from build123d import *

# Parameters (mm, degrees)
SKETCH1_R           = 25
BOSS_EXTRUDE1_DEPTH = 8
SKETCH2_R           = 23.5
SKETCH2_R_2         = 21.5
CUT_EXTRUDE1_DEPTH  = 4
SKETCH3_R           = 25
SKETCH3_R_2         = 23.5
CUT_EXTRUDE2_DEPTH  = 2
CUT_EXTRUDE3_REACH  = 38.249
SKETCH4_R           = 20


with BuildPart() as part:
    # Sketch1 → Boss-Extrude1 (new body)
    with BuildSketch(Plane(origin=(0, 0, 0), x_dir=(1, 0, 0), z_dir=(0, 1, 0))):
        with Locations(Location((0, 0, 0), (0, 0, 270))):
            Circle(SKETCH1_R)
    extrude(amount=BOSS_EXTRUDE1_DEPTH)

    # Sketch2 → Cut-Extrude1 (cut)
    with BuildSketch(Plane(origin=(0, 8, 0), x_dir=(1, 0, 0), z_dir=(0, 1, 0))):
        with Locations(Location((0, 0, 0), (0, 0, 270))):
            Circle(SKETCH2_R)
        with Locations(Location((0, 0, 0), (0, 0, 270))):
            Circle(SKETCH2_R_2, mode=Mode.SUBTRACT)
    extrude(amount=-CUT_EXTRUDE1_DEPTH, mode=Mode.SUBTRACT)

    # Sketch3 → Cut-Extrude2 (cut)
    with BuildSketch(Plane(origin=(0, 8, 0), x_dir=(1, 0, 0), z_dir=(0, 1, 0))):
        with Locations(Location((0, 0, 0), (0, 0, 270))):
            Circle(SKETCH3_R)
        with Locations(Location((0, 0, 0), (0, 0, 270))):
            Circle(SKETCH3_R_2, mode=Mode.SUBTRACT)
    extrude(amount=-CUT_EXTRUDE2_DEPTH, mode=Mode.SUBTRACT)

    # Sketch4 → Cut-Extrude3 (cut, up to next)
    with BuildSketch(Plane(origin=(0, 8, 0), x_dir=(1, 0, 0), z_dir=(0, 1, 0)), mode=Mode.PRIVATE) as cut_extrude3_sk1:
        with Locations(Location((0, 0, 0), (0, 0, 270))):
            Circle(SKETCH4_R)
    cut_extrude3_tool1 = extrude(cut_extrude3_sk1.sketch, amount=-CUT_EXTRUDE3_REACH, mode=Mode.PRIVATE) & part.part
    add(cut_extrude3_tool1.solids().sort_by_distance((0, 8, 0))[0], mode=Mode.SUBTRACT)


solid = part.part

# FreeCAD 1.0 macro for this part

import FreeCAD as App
import Part
import Sketcher
Q = App.Units.Quantity

doc = App.newDocument("Part")
body = doc.addObject("PartDesign::Body", "Body")

sketch1 = doc.addObject("Sketcher::SketchObject", "Sketch")
body.addObject(sketch1)
sketch1.AttachmentSupport = (doc.XZ_Plane, [""])
sketch1.MapMode = "FlatFace"
sketch1.addGeometry(Part.Circle(App.Vector(0, 0, 0), App.Vector(0, 0, 1), 25), False)
sketch1.addConstraint([
    Sketcher.Constraint("Coincident", 0, 3, -1, 1),
    Sketcher.Constraint("Diameter", 0, Q("50 mm")),
])
pad1 = doc.addObject("PartDesign::Pad", "Pad")
body.addObject(pad1)
pad1.Profile = sketch1
pad1.Length = 8
pad1.Reversed = True

sketch2 = doc.addObject("Sketcher::SketchObject", "Sketch001")
body.addObject(sketch2)
sketch2.AttachmentSupport = (doc.XZ_Plane, [""])
sketch2.MapMode = "FlatFace"
sketch2.AttachmentOffset = App.Placement(App.Vector(0, 0, -8), App.Rotation())
sketch2.addGeometry([
    Part.Circle(App.Vector(0, 0, 0), App.Vector(0, 0, 1), 24),
    Part.Circle(App.Vector(0, 0, 0), App.Vector(0, 0, 1), 22),
], False)
sketch2.addConstraint([
    Sketcher.Constraint("Coincident", 0, 3, -1, 1),
    Sketcher.Constraint("Coincident", 1, 3, -1, 1),
    Sketcher.Constraint("Diameter", 0, Q("47 mm")),
    Sketcher.Constraint("Diameter", 1, Q("43 mm")),
])
pocket1 = doc.addObject("PartDesign::Pocket", "Pocket")
body.addObject(pocket1)
pocket1.Profile = sketch2
pocket1.Length = 4
pocket1.Reversed = True

sketch3 = doc.addObject("Sketcher::SketchObject", "Sketch002")
body.addObject(sketch3)
sketch3.AttachmentSupport = (doc.XZ_Plane, [""])
sketch3.MapMode = "FlatFace"
sketch3.AttachmentOffset = App.Placement(App.Vector(0, 0, -8), App.Rotation())
sketch3.addGeometry([
    Part.Circle(App.Vector(0, 0, 0), App.Vector(0, 0, 1), 25),
    Part.Circle(App.Vector(0, 0, 0), App.Vector(0, 0, 1), 24),
], False)
sketch3.addConstraint([
    Sketcher.Constraint("Coincident", 0, 3, -1, 1),
    Sketcher.Constraint("Coincident", 1, 3, -1, 1),
    Sketcher.Constraint("Diameter", 0, Q("50 mm")),
    Sketcher.Constraint("Diameter", 1, Q("47 mm")),
])
pocket2 = doc.addObject("PartDesign::Pocket", "Pocket001")
body.addObject(pocket2)
pocket2.Profile = sketch3
pocket2.Length = 2
pocket2.Reversed = True

sketch4 = doc.addObject("Sketcher::SketchObject", "Sketch003")
body.addObject(sketch4)
sketch4.AttachmentSupport = (doc.XZ_Plane, [""])
sketch4.MapMode = "FlatFace"
sketch4.AttachmentOffset = App.Placement(App.Vector(0, 0, -8), App.Rotation())
sketch4.addGeometry(Part.Circle(App.Vector(0, 0, 0), App.Vector(0, 0, 1), 20), False)
sketch4.addConstraint([
    Sketcher.Constraint("Coincident", 0, 3, -1, 1),
    Sketcher.Constraint("Diameter", 0, Q("40 mm")),
])
pocket3 = doc.addObject("PartDesign::Pocket", "Pocket002")
body.addObject(pocket3)
pocket3.Profile = sketch4
pocket3.Type = "UpToFirst"
pocket3.Reversed = True

doc.recompute()
